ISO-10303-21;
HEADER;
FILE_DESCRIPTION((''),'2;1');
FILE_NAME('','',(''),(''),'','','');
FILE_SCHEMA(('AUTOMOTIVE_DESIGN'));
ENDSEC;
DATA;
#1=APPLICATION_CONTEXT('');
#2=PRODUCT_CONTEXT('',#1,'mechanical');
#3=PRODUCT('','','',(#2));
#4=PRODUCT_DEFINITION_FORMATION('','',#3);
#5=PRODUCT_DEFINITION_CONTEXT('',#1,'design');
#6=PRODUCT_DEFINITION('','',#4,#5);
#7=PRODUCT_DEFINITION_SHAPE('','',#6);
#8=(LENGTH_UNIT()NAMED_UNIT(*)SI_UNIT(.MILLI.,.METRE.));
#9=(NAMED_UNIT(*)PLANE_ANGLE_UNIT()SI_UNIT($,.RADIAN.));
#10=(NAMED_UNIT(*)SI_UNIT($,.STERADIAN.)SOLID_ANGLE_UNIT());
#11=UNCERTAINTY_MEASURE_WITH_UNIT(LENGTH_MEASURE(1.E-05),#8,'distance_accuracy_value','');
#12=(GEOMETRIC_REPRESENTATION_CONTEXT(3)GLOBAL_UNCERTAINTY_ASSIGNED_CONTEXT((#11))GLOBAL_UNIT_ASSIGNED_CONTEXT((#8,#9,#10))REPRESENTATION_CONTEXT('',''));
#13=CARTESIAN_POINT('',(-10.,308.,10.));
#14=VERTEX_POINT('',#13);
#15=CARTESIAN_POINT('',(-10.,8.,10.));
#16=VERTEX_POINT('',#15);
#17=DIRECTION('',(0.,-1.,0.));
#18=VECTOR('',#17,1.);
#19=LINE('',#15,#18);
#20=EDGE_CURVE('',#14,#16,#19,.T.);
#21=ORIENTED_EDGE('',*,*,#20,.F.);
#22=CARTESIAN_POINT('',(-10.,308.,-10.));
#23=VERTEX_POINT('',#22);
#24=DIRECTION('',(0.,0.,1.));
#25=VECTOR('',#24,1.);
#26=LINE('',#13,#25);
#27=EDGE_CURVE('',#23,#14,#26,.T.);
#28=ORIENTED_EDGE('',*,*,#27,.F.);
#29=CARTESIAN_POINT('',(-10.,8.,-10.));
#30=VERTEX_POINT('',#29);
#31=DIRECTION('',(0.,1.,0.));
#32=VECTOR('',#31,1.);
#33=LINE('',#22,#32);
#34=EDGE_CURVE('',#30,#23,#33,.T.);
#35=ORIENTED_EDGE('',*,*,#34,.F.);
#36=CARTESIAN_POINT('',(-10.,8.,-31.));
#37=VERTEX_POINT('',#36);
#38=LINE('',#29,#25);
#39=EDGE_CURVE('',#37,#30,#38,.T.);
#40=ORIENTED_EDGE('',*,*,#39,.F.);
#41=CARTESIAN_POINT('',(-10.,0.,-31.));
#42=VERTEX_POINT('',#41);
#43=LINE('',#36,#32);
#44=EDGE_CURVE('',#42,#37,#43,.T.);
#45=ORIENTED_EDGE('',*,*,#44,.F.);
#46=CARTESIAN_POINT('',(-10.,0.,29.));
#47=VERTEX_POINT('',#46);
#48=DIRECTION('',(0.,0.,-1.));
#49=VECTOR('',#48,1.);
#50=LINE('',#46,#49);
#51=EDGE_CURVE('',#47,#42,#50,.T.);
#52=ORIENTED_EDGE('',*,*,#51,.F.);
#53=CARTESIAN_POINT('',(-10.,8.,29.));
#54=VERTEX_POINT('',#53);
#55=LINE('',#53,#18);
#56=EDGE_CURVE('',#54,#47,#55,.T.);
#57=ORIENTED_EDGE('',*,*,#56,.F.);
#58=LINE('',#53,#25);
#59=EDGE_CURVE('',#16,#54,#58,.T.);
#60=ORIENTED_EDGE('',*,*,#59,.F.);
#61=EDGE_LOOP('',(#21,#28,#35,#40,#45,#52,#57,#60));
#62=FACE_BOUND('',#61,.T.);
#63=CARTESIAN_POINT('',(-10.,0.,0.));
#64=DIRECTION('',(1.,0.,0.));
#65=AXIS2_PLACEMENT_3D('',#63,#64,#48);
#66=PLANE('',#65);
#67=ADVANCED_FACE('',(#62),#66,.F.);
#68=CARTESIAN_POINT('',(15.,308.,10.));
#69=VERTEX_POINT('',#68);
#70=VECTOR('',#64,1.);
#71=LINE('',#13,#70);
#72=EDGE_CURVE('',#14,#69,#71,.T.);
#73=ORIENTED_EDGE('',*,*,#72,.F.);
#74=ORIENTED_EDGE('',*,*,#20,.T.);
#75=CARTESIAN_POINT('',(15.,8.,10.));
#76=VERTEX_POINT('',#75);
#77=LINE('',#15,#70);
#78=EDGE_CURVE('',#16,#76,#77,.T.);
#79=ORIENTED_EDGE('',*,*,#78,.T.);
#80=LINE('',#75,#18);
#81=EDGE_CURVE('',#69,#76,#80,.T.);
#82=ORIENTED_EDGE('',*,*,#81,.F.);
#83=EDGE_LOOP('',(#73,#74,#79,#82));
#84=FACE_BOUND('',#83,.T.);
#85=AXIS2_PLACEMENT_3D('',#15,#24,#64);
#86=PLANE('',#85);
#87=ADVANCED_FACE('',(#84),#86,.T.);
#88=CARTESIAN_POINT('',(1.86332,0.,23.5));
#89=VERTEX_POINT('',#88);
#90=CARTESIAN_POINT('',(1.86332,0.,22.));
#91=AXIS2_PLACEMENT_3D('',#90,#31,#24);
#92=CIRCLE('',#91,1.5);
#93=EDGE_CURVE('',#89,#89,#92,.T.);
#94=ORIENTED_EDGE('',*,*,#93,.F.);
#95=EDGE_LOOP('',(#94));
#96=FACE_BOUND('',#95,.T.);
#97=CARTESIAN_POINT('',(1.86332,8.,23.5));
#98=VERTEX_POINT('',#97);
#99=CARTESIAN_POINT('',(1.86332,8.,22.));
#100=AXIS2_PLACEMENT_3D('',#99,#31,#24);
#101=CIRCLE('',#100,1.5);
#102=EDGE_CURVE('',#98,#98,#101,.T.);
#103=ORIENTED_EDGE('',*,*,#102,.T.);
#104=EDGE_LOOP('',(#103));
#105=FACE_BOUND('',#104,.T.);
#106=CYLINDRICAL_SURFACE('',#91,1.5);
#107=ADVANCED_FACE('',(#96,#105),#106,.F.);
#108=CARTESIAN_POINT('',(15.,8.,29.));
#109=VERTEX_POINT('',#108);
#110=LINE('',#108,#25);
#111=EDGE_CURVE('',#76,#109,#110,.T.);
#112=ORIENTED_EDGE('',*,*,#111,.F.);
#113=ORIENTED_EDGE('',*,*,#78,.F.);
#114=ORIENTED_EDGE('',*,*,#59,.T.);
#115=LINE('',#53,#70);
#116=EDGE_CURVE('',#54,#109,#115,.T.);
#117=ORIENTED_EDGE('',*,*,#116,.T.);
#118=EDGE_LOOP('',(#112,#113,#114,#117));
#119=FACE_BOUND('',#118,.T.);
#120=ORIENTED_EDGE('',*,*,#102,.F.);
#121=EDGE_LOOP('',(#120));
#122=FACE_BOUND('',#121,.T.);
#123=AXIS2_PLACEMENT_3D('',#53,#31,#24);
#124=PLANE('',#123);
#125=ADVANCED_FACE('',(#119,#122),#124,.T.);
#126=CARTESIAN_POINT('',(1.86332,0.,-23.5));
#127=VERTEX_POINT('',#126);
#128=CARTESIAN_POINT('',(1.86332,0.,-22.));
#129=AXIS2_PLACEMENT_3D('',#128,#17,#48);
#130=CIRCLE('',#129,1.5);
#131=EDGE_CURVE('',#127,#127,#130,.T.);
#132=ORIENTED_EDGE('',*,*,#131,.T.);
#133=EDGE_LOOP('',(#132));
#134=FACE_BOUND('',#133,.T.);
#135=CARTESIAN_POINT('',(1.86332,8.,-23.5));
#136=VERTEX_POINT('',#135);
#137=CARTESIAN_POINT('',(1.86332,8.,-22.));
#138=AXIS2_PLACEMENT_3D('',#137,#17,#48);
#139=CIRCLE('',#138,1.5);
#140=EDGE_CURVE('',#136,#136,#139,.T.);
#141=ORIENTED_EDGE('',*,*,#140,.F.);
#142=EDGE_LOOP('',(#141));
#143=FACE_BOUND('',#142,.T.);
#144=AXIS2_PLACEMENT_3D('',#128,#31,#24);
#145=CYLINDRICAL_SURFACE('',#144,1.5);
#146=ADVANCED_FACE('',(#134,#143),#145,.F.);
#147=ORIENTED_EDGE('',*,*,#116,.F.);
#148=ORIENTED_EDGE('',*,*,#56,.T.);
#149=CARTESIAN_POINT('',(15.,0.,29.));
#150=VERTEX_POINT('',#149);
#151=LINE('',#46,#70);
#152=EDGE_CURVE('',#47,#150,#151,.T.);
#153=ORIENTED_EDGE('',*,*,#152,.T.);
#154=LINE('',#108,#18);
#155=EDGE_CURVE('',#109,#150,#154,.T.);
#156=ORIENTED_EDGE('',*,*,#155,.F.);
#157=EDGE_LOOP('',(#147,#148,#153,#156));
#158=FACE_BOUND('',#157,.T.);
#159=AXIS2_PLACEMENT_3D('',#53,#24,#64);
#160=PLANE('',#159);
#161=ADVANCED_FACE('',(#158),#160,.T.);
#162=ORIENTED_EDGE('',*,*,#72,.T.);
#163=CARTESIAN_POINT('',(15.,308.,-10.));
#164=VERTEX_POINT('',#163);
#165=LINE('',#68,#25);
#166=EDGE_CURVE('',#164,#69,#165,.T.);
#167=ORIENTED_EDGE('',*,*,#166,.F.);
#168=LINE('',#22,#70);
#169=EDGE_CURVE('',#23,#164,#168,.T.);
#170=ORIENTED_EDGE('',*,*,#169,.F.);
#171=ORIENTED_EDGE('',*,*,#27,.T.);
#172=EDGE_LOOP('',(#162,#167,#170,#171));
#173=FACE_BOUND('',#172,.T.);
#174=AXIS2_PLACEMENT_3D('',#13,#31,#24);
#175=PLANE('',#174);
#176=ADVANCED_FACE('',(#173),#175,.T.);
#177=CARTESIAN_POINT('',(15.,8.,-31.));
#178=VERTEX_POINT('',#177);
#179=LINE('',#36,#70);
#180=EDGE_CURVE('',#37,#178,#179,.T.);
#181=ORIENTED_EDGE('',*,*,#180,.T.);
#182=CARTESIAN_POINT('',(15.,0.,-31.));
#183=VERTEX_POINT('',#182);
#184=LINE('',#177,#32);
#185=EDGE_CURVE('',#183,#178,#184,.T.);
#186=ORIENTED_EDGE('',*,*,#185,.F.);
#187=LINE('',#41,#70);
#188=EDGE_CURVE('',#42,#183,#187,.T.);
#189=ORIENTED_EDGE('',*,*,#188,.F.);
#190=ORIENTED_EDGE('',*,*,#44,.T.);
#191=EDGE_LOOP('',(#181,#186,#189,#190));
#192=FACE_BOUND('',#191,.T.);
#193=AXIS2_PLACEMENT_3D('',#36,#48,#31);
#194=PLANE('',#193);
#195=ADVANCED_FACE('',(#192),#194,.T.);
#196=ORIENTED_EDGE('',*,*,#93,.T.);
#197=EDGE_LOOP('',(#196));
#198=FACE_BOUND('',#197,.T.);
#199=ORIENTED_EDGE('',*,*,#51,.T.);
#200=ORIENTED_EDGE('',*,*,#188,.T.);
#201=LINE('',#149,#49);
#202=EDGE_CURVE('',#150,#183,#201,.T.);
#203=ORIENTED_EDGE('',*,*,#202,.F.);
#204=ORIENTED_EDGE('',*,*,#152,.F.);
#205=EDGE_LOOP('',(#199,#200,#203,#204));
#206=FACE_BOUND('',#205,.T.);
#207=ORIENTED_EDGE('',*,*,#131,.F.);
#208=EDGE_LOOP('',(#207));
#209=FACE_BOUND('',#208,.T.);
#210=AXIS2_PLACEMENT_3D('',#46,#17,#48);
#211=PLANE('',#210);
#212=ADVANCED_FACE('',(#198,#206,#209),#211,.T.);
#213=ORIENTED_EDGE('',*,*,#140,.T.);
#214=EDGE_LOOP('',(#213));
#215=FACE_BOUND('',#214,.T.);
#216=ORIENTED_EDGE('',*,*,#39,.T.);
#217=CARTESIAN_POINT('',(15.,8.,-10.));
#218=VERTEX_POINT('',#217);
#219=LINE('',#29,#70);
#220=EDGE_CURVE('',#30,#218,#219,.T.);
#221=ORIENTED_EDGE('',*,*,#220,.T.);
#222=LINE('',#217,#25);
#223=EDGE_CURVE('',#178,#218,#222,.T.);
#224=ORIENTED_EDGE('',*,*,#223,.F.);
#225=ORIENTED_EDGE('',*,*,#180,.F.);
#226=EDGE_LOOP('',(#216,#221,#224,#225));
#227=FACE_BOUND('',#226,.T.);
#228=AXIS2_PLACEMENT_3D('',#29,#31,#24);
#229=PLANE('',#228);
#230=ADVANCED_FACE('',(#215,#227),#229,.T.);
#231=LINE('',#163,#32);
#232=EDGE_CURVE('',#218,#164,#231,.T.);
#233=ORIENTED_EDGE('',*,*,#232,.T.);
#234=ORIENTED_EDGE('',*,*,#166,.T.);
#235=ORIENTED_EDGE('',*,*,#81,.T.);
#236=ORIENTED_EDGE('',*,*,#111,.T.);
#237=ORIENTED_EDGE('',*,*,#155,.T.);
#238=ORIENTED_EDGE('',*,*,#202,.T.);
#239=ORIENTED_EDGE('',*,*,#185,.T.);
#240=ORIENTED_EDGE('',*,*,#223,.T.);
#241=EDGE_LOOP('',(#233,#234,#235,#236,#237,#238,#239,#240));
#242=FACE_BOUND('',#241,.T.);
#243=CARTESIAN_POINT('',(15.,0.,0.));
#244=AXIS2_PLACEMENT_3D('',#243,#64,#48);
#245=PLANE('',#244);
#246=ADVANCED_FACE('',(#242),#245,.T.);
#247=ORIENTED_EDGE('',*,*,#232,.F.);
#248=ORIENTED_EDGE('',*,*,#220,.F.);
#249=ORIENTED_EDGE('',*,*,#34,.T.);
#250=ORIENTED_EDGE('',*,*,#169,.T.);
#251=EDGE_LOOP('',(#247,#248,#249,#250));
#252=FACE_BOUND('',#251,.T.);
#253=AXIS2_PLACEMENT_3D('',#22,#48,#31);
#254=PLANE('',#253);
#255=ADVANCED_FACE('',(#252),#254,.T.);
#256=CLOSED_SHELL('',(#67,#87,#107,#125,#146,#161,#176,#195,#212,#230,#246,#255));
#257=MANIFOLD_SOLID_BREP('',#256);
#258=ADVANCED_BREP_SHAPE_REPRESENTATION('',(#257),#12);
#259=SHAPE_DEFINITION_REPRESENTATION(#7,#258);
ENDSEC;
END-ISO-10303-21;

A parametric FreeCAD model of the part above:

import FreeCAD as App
import Part
import Sketcher
Q = App.Units.Quantity


def add_polygon(sketch, points):
    """Adds a closed chain of lines whose ends are joined by coincident constraints."""
    first, n = sketch.GeometryCount, len(points)
    for a, b in zip(points, points[1:] + points[:1]):
        sketch.addGeometry(Part.LineSegment(App.Vector(*a, 0), App.Vector(*b, 0)), False)
    for i in range(n):
        sketch.addConstraint(Sketcher.Constraint("Coincident", first + i, 2, first + (i + 1) % n, 1))

doc = App.newDocument("Part")
body = doc.addObject("PartDesign::Body", "Body")

sketch1 = doc.addObject("Sketcher::SketchObject", "Sketch")
body.addObject(sketch1)
sketch1.AttachmentSupport = (doc.YZ_Plane, [""])
sketch1.MapMode = "FlatFace"
add_polygon(sketch1, [(308, 10), (8, 10), (8, 29), (0, 29), (0, -31), (8, -31), (8, -10), (308, -10)])
sketch1.addConstraint([
    Sketcher.Constraint("Horizontal", 0),
    Sketcher.Constraint("Vertical", 1),
    Sketcher.Constraint("Horizontal", 2),
    Sketcher.Constraint("Vertical", 3),
    Sketcher.Constraint("Horizontal", 4),
    Sketcher.Constraint("Vertical", 5),
    Sketcher.Constraint("Horizontal", 6),
    Sketcher.Constraint("Vertical", 7),
    Sketcher.Constraint("Symmetric", 0, 2, 5, 2, -1),
    Sketcher.Constraint("PointOnObject", 2, 2, -2),
    Sketcher.Constraint("DistanceX", 0, 2, 0, 1, Q("300 mm")),
    Sketcher.Constraint("DistanceX", 2, 2, 2, 1, Q("8 mm")),
    Sketcher.Constraint("DistanceY", 1, 1, 1, 2, Q("19 mm")),
    Sketcher.Constraint("DistanceY", 3, 2, 3, 1, Q("60 mm")),
    Sketcher.Constraint("DistanceY", 5, 1, 5, 2, Q("21 mm")),
])
pad1 = doc.addObject("PartDesign::Pad", "Pad")
body.addObject(pad1)
pad1.Profile = sketch1
pad1.Type = "TwoLengths"
pad1.Length = 15
pad1.Length2 = 10

sketch2 = doc.addObject("Sketcher::SketchObject", "Sketch001")
body.addObject(sketch2)
sketch2.AttachmentSupport = (doc.XZ_Plane, [""])
sketch2.MapMode = "FlatFace"
sketch2.AttachmentOffset = App.Placement(App.Vector(0, 0, -8), App.Rotation())
sketch2.addGeometry(Part.Circle(App.Vector(1.9, 22, 0), App.Vector(0, 0, 1), 1.5), False)
sketch2.addConstraint([
    Sketcher.Constraint("Diameter", 0, Q("3 mm")),
    Sketcher.Constraint("DistanceY", -1, 1, 0, 3, Q("22 mm")),
    Sketcher.Constraint("DistanceX", -1, 1, 0, 3, Q("1.86332 mm")),
])
pocket1 = doc.addObject("PartDesign::Pocket", "Pocket")
body.addObject(pocket1)
pocket1.Profile = sketch2
pocket1.Type = "ThroughAll"
pocket1.Reversed = True
doc.recompute()

mirrored = doc.addObject("PartDesign::Mirrored", "Mirrored")
body.addObject(mirrored)
mirrored.Originals = [pocket1]
mirrored.MirrorPlane = (doc.XY_Plane, [""])
body.Tip = mirrored

doc.recompute()
